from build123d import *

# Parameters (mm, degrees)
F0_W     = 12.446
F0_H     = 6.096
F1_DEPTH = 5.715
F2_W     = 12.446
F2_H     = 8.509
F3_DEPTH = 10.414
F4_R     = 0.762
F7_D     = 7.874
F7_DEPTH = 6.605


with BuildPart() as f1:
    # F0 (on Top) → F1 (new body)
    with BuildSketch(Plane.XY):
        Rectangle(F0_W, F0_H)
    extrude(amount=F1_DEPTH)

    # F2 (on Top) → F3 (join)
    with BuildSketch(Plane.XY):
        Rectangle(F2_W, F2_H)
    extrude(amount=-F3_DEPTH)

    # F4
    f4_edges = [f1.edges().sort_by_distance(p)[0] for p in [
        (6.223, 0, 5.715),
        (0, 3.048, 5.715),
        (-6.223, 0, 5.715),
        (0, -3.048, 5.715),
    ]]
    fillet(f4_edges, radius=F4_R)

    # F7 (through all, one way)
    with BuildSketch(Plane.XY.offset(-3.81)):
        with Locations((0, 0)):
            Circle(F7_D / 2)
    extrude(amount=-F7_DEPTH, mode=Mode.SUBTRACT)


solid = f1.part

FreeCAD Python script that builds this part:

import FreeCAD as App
import Part
import Sketcher

V = App.Vector
Q = App.Units.Quantity


def edges_at(feature, points):
    """Names of the edges that pass closest to the given points."""
    edges = feature.Shape.Edges
    near = lambda p: min(range(len(edges)), key=lambda i: edges[i].distToShape(Part.Vertex(*p))[0])
    return sorted({f"Edge{near(p) + 1}" for p in points})


def add_polygon(sketch, points):
    """Adds a closed chain of lines whose ends are joined by coincident constraints."""
    first, n = sketch.GeometryCount, len(points)
    for a, b in zip(points, points[1:] + points[:1]):
        sketch.addGeometry(Part.LineSegment(App.Vector(*a, 0), App.Vector(*b, 0)), False)
    for i in range(n):
        sketch.addConstraint(Sketcher.Constraint("Coincident", first + i, 2, first + (i + 1) % n, 1))

doc = App.newDocument("Part")
body = doc.addObject("PartDesign::Body", "Body")

# Sketch on XY plane
sketch1 = doc.addObject("Sketcher::SketchObject", "Sketch")
body.addObject(sketch1)
sketch1.AttachmentSupport = (doc.XY_Plane, [""])
sketch1.MapMode = "FlatFace"
add_polygon(sketch1, [(-6, 3), (-6, -3), (6, -3), (6, 3)])  # lines 0-3
sketch1.addConstraint(Sketcher.Constraint("Vertical", 0))
sketch1.addConstraint(Sketcher.Constraint("Horizontal", 1))
sketch1.addConstraint(Sketcher.Constraint("Vertical", 2))
sketch1.addConstraint(Sketcher.Constraint("Horizontal", 3))
sketch1.addConstraint(Sketcher.Constraint("Symmetric", 0, 2, 2, 2, -1, 1))
sketch1.addConstraint(Sketcher.Constraint("DistanceX", 1, 1, 1, 2, Q("0.49 in")))
sketch1.addConstraint(Sketcher.Constraint("DistanceY", 0, 2, 0, 1, Q("0.24 in")))
pad1 = doc.addObject("PartDesign::Pad", "Pad")
body.addObject(pad1)
pad1.Profile = sketch1
pad1.Length = Q("0.225 in")

# Sketch on XY plane
sketch2 = doc.addObject("Sketcher::SketchObject", "Sketch001")
body.addObject(sketch2)
sketch2.AttachmentSupport = (doc.XY_Plane, [""])
sketch2.MapMode = "FlatFace"
add_polygon(sketch2, [(-6, 4), (-6, -4), (6, -4), (6, 4)])  # lines 0-3
sketch2.addConstraint(Sketcher.Constraint("Vertical", 0))
sketch2.addConstraint(Sketcher.Constraint("Horizontal", 1))
sketch2.addConstraint(Sketcher.Constraint("Vertical", 2))
sketch2.addConstraint(Sketcher.Constraint("Horizontal", 3))
sketch2.addConstraint(Sketcher.Constraint("Symmetric", 0, 2, 2, 2, -1, 1))
sketch2.addConstraint(Sketcher.Constraint("DistanceX", 1, 1, 1, 2, Q("0.49 in")))
sketch2.addConstraint(Sketcher.Constraint("DistanceY", 0, 2, 0, 1, Q("0.335 in")))
pad2 = doc.addObject("PartDesign::Pad", "Pad001")
body.addObject(pad2)
pad2.Profile = sketch2
pad2.Length = Q("0.41 in")
pad2.Reversed = True
doc.recompute()

fillet = doc.addObject("PartDesign::Fillet", "Fillet")
body.addObject(fillet)
fillet.Base = (pad2, edges_at(pad2, [
    (6.223, 0, 5.715),
    (0, 3.048, 5.715),
    (-6.223, 0, 5.715),
    (0, -3.048, 5.715),
]))
fillet.Radius = Q("0.03 in")

# Sketch on XY plane
sketch3 = doc.addObject("Sketcher::SketchObject", "Sketch002")
body.addObject(sketch3)
sketch3.AttachmentSupport = (doc.XY_Plane, [""])
sketch3.MapMode = "FlatFace"
sketch3.AttachmentOffset = App.Placement(V(0, 0, -0.15 * 25.4), App.Rotation())
sketch3.addGeometry(Part.Circle(V(0, 0, 0), V(0, 0, 1), 3.9), False)
sketch3.addConstraint(Sketcher.Constraint("Coincident", 0, 3, -1, 1))
sketch3.addConstraint(Sketcher.Constraint("Diameter", 0, Q("0.31 in")))
pocket1 = doc.addObject("PartDesign::Pocket", "Pocket")
body.addObject(pocket1)
pocket1.Profile = sketch3
pocket1.Type = "ThroughAll"

doc.recompute()
